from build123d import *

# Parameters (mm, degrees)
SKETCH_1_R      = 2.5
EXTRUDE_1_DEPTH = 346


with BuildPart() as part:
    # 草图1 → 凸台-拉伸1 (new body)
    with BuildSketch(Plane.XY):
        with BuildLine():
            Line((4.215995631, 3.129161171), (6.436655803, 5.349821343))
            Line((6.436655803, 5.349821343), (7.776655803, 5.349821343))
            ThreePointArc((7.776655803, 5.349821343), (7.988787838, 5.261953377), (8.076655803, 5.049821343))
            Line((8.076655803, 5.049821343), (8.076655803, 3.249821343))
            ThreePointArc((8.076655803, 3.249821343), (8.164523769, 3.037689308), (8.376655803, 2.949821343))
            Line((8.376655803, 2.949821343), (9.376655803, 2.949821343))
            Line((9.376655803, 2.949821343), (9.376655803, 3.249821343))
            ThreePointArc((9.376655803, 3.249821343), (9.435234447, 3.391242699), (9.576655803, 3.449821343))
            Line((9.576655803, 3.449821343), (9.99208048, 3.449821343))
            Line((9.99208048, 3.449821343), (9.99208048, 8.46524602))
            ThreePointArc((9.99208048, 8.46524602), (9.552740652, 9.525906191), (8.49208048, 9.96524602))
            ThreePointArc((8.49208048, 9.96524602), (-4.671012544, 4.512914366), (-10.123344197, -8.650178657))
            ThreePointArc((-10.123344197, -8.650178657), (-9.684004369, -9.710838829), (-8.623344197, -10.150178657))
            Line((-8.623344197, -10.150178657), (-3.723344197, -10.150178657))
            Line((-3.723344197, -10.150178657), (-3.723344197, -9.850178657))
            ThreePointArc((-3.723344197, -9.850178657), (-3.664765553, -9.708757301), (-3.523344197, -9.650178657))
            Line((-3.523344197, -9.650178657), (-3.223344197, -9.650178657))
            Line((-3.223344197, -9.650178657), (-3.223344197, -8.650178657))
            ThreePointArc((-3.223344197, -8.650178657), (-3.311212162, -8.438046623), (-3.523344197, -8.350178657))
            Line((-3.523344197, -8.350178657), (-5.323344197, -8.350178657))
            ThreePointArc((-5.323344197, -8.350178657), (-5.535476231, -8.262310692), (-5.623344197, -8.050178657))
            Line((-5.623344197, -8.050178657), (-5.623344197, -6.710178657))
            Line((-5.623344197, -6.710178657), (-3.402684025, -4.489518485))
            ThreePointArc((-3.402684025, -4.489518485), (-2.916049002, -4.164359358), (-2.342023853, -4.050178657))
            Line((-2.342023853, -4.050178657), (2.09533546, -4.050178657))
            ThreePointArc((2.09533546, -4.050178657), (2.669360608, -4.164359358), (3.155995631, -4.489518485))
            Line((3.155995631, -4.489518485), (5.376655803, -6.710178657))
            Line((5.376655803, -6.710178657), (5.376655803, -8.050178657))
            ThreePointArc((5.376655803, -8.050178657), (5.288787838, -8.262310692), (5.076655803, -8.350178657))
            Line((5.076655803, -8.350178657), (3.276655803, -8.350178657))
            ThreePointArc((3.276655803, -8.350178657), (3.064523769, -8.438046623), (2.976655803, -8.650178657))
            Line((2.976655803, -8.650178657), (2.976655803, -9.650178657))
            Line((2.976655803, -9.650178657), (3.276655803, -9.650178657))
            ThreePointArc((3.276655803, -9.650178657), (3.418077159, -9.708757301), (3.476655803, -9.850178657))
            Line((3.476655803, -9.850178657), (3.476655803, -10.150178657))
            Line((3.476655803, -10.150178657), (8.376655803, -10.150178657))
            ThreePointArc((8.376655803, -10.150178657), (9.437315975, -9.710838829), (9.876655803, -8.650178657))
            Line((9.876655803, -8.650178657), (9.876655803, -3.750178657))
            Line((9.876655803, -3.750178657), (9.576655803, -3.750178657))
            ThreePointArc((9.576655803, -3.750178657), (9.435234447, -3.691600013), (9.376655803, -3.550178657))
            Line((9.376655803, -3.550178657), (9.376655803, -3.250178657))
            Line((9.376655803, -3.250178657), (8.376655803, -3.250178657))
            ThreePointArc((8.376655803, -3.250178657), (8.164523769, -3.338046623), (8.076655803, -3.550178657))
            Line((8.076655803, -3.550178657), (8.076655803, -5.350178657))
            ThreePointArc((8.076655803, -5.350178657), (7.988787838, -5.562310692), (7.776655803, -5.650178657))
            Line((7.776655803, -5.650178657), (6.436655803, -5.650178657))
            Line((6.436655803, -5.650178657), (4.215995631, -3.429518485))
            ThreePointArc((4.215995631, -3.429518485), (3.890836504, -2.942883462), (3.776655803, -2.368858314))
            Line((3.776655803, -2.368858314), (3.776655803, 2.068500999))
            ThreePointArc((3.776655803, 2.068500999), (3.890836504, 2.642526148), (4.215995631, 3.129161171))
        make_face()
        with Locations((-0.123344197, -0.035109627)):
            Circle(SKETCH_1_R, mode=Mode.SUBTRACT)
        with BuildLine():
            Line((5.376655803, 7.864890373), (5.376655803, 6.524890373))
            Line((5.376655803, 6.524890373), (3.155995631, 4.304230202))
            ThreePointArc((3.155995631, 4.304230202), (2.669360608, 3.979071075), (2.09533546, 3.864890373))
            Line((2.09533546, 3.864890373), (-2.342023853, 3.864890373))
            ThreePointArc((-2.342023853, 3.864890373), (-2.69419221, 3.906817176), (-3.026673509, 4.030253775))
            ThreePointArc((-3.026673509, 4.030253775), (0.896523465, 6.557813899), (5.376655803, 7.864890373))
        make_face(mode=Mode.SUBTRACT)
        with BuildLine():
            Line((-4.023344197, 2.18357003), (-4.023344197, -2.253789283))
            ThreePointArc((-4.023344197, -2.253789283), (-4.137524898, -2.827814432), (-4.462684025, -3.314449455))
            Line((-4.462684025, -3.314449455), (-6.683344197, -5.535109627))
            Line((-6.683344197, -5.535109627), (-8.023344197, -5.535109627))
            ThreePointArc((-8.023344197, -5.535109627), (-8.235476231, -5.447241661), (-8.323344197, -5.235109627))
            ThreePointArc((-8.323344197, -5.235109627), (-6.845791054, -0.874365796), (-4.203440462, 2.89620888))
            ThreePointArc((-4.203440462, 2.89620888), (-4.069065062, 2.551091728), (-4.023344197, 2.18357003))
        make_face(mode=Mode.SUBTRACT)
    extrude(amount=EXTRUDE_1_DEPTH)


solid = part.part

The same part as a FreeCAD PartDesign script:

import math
import FreeCAD as App
import Part
import Sketcher
from FreeCAD import Vector
Q = App.Units.Quantity

doc = App.newDocument("Part")
params = doc.addObject("Spreadsheet::Sheet", "Params")
for row, (alias, value) in enumerate([
    ("sketch1_diameter", "5 mm"),
    ("sketch1_radius", "0.3 mm"),
    ("sketch1_radius2", "0.2 mm"),
    ("sketch1_radius3", "1.5 mm"),
    ("sketch1_width", "4.9 mm"),
    ("pad1_length", "346 mm"),
], start=1):
    params.set(f"A{row}", alias)
    params.set(f"B{row}", "=" + value)
    params.setAlias(f"B{row}", alias)

body = doc.addObject("PartDesign::Body", "Body")

# Sketch on XY plane
sketch1 = body.newObject("Sketcher::SketchObject", "Sketch")
sketch1.AttachmentSupport = (doc.getObject("XY_Plane"), [""])
sketch1.MapMode = "FlatFace"
sketch1.addGeometry([
    Part.LineSegment(Vector(4.22, 3.13, 0), Vector(6.44, 5.35, 0)),  # 0
    Part.LineSegment(Vector(6.44, 5.35, 0), Vector(7.78, 5.35, 0)),  # 1
    Part.ArcOfCircle(Part.Circle(Vector(7.78, 5.05, 0), Vector(0, 0, 1), 0.3), math.radians(0), math.radians(90)),  # 2
    Part.LineSegment(Vector(8.08, 5.05, 0), Vector(8.08, 3.25, 0)),  # 3
    Part.ArcOfCircle(Part.Circle(Vector(8.38, 3.25, 0), Vector(0, 0, 1), 0.3), math.radians(180), math.radians(270)),  # 4
    Part.LineSegment(Vector(8.38, 2.95, 0), Vector(9.38, 2.95, 0)),  # 5
    Part.LineSegment(Vector(9.38, 2.95, 0), Vector(9.38, 3.25, 0)),  # 6
    Part.ArcOfCircle(Part.Circle(Vector(9.58, 3.25, 0), Vector(0, 0, 1), 0.2), math.radians(90), math.radians(180)),  # 7
    Part.LineSegment(Vector(9.58, 3.45, 0), Vector(9.99, 3.45, 0)),  # 8
    Part.LineSegment(Vector(9.99, 3.45, 0), Vector(9.99, 8.47, 0)),  # 9
    Part.ArcOfCircle(Part.Circle(Vector(8.49, 8.47, 0), Vector(0, 0, 1), 1.5), math.radians(0), math.radians(90)),  # 10
    Part.ArcOfCircle(Part.Circle(Vector(8.49, -8.65, 0), Vector(0, 0, 1), 18.62), math.radians(90), math.radians(180)),  # 11
    Part.ArcOfCircle(Part.Circle(Vector(-8.62, -8.65, 0), Vector(0, 0, 1), 1.5), math.radians(180), math.radians(270)),  # 12
    Part.LineSegment(Vector(-8.62, -10.15, 0), Vector(-3.72, -10.15, 0)),  # 13
    Part.LineSegment(Vector(-3.72, -10.15, 0), Vector(-3.72, -9.85, 0)),  # 14
    Part.ArcOfCircle(Part.Circle(Vector(-3.52, -9.85, 0), Vector(0, 0, 1), 0.2), math.radians(90), math.radians(180)),  # 15
    Part.LineSegment(Vector(-3.52, -9.65, 0), Vector(-3.22, -9.65, 0)),  # 16
    Part.LineSegment(Vector(-3.22, -9.65, 0), Vector(-3.22, -8.65, 0)),  # 17
    Part.ArcOfCircle(Part.Circle(Vector(-3.52, -8.65, 0), Vector(0, 0, 1), 0.3), math.radians(0), math.radians(90)),  # 18
    Part.LineSegment(Vector(-3.52, -8.35, 0), Vector(-5.32, -8.35, 0)),  # 19
    Part.ArcOfCircle(Part.Circle(Vector(-5.32, -8.05, 0), Vector(0, 0, 1), 0.3), math.radians(180), math.radians(270)),  # 20
    Part.LineSegment(Vector(-5.62, -8.05, 0), Vector(-5.62, -6.71, 0)),  # 21
    Part.LineSegment(Vector(-5.62, -6.71, 0), Vector(-3.4, -4.49, 0)),  # 22
    Part.ArcOfCircle(Part.Circle(Vector(-2.34, -5.55, 0), Vector(0, 0, 1), 1.5), math.radians(90), math.radians(135)),  # 23
    Part.LineSegment(Vector(-2.34, -4.05, 0), Vector(2.1, -4.05, 0)),  # 24
    Part.ArcOfCircle(Part.Circle(Vector(2.1, -5.55, 0), Vector(0, 0, 1), 1.5), math.radians(45), math.radians(90)),  # 25
    Part.LineSegment(Vector(3.16, -4.49, 0), Vector(5.38, -6.71, 0)),  # 26
    Part.LineSegment(Vector(5.38, -6.71, 0), Vector(5.38, -8.05, 0)),  # 27
    Part.ArcOfCircle(Part.Circle(Vector(5.08, -8.05, 0), Vector(0, 0, 1), 0.3), math.radians(-90), math.radians(0)),  # 28
    Part.LineSegment(Vector(5.08, -8.35, 0), Vector(3.28, -8.35, 0)),  # 29
    Part.ArcOfCircle(Part.Circle(Vector(3.28, -8.65, 0), Vector(0, 0, 1), 0.3), math.radians(90), math.radians(180)),  # 30
    Part.LineSegment(Vector(2.98, -8.65, 0), Vector(2.98, -9.65, 0)),  # 31
    Part.LineSegment(Vector(2.98, -9.65, 0), Vector(3.28, -9.65, 0)),  # 32
    Part.ArcOfCircle(Part.Circle(Vector(3.28, -9.85, 0), Vector(0, 0, 1), 0.2), math.radians(0), math.radians(90)),  # 33
    Part.LineSegment(Vector(3.48, -9.85, 0), Vector(3.48, -10.15, 0)),  # 34
    Part.LineSegment(Vector(3.48, -10.15, 0), Vector(8.38, -10.15, 0)),  # 35
    Part.ArcOfCircle(Part.Circle(Vector(8.38, -8.65, 0), Vector(0, 0, 1), 1.5), math.radians(-90), math.radians(0)),  # 36
    Part.LineSegment(Vector(9.88, -8.65, 0), Vector(9.88, -3.75, 0)),  # 37
    Part.LineSegment(Vector(9.88, -3.75, 0), Vector(9.58, -3.75, 0)),  # 38
    Part.ArcOfCircle(Part.Circle(Vector(9.58, -3.55, 0), Vector(0, 0, 1), 0.2), math.radians(-180), math.radians(-90)),  # 39
    Part.LineSegment(Vector(9.38, -3.55, 0), Vector(9.38, -3.25, 0)),  # 40
    Part.LineSegment(Vector(9.38, -3.25, 0), Vector(8.38, -3.25, 0)),  # 41
    Part.ArcOfCircle(Part.Circle(Vector(8.38, -3.55, 0), Vector(0, 0, 1), 0.3), math.radians(90), math.radians(180)),  # 42
    Part.LineSegment(Vector(8.08, -3.55, 0), Vector(8.08, -5.35, 0)),  # 43
    Part.ArcOfCircle(Part.Circle(Vector(7.78, -5.35, 0), Vector(0, 0, 1), 0.3), math.radians(-90), math.radians(0)),  # 44
    Part.LineSegment(Vector(7.78, -5.65, 0), Vector(6.44, -5.65, 0)),  # 45
    Part.LineSegment(Vector(6.44, -5.65, 0), Vector(4.22, -3.43, 0)),  # 46
    Part.ArcOfCircle(Part.Circle(Vector(5.28, -2.37, 0), Vector(0, 0, 1), 1.5), math.radians(180), math.radians(225)),  # 47
    Part.LineSegment(Vector(3.78, -2.37, 0), Vector(3.78, 2.07, 0)),  # 48
    Part.ArcOfCircle(Part.Circle(Vector(5.28, 2.07, 0), Vector(0, 0, 1), 1.5), math.radians(135), math.radians(180)),  # 49
    Part.ArcOfCircle(Part.Circle(Vector(-5.52, 2.18, 0), Vector(0, 0, 1), 1.5), math.radians(0), math.radians(28)),  # 50
    Part.LineSegment(Vector(-4.02, 2.18, 0), Vector(-4.02, -2.25, 0)),  # 51
    Part.ArcOfCircle(Part.Circle(Vector(-5.52, -2.25, 0), Vector(0, 0, 1), 1.5), math.radians(-45), math.radians(0)),  # 52
    Part.LineSegment(Vector(-4.46, -3.31, 0), Vector(-6.68, -5.54, 0)),  # 53
    Part.LineSegment(Vector(-6.68, -5.54, 0), Vector(-8.02, -5.54, 0)),  # 54
    Part.ArcOfCircle(Part.Circle(Vector(-8.02, -5.24, 0), Vector(0, 0, 1), 0.3), math.radians(-180), math.radians(-90)),  # 55
    Part.ArcOfCircle(Part.Circle(Vector(7.64, -8.21, 0), Vector(0, 0, 1), 16.23), math.radians(137), math.radians(169)),  # 56
    Part.Circle(Vector(-0.12, -0.04, 0), Vector(0, 0, 1), 2.5),  # 57
    Part.ArcOfCircle(Part.Circle(Vector(7.64, -8.21, 0), Vector(0, 0, 1), 16.23), math.radians(98), math.radians(131)),  # 58
    Part.LineSegment(Vector(5.38, 7.86, 0), Vector(5.38, 6.52, 0)),  # 59
    Part.LineSegment(Vector(5.38, 6.52, 0), Vector(3.16, 4.3, 0)),  # 60
    Part.ArcOfCircle(Part.Circle(Vector(2.1, 5.36, 0), Vector(0, 0, 1), 1.5), math.radians(-90), math.radians(-45)),  # 61
    Part.LineSegment(Vector(2.1, 3.86, 0), Vector(-2.34, 3.86, 0)),  # 62
    Part.ArcOfCircle(Part.Circle(Vector(-2.34, 5.36, 0), Vector(0, 0, 1), 1.5), math.radians(-117), math.radians(-90)),  # 63
], False)
sketch1.addConstraint([
    Sketcher.Constraint("Coincident", 0, 2, 1, 1),
    Sketcher.Constraint("Tangent", 1, 2, 2, 2),
    Sketcher.Constraint("Tangent", 2, 1, 3, 1),
    Sketcher.Constraint("Tangent", 3, 2, 4, 1),
    Sketcher.Constraint("Tangent", 4, 2, 5, 1),
    Sketcher.Constraint("Coincident", 5, 2, 6, 1),
    Sketcher.Constraint("Tangent", 6, 2, 7, 2),
    Sketcher.Constraint("Tangent", 7, 1, 8, 1),
    Sketcher.Constraint("Coincident", 8, 2, 9, 1),
    Sketcher.Constraint("Tangent", 9, 2, 10, 1),
    Sketcher.Constraint("Tangent", 10, 2, 11, 1),
    Sketcher.Constraint("Tangent", 11, 2, 12, 1),
    Sketcher.Constraint("Tangent", 12, 2, 13, 1),
    Sketcher.Constraint("Coincident", 13, 2, 14, 1),
    Sketcher.Constraint("Tangent", 14, 2, 15, 2),
    Sketcher.Constraint("Tangent", 15, 1, 16, 1),
    Sketcher.Constraint("Coincident", 16, 2, 17, 1),
    Sketcher.Constraint("Tangent", 17, 2, 18, 1),
    Sketcher.Constraint("Tangent", 18, 2, 19, 1),
    Sketcher.Constraint("Tangent", 19, 2, 20, 2),
    Sketcher.Constraint("Tangent", 20, 1, 21, 1),
    Sketcher.Constraint("Coincident", 21, 2, 22, 1),
    Sketcher.Constraint("Tangent", 22, 2, 23, 2),
    Sketcher.Constraint("Tangent", 23, 1, 24, 1),
    Sketcher.Constraint("Tangent", 24, 2, 25, 2),
    Sketcher.Constraint("Tangent", 25, 1, 26, 1),
    Sketcher.Constraint("Coincident", 26, 2, 27, 1),
    Sketcher.Constraint("Tangent", 27, 2, 28, 2),
    Sketcher.Constraint("Tangent", 28, 1, 29, 1),
    Sketcher.Constraint("Tangent", 29, 2, 30, 1),
    Sketcher.Constraint("Tangent", 30, 2, 31, 1),
    Sketcher.Constraint("Coincident", 31, 2, 32, 1),
    Sketcher.Constraint("Tangent", 32, 2, 33, 2),
    Sketcher.Constraint("Tangent", 33, 1, 34, 1),
    Sketcher.Constraint("Coincident", 34, 2, 35, 1),
    Sketcher.Constraint("Tangent", 35, 2, 36, 1),
    Sketcher.Constraint("Tangent", 36, 2, 37, 1),
    Sketcher.Constraint("Coincident", 37, 2, 38, 1),
    Sketcher.Constraint("Tangent", 38, 2, 39, 2),
    Sketcher.Constraint("Tangent", 39, 1, 40, 1),
    Sketcher.Constraint("Coincident", 40, 2, 41, 1),
    Sketcher.Constraint("Tangent", 41, 2, 42, 1),
    Sketcher.Constraint("Tangent", 42, 2, 43, 1),
    Sketcher.Constraint("Tangent", 43, 2, 44, 2),
    Sketcher.Constraint("Tangent", 44, 1, 45, 1),
    Sketcher.Constraint("Coincident", 45, 2, 46, 1),
    Sketcher.Constraint("Tangent", 46, 2, 47, 2),
    Sketcher.Constraint("Tangent", 47, 1, 48, 1),
    Sketcher.Constraint("Tangent", 48, 2, 49, 2),
    Sketcher.Constraint("Tangent", 49, 1, 0, 1),
    Sketcher.Constraint("Tangent", 50, 1, 51, 1),
    Sketcher.Constraint("Tangent", 51, 2, 52, 2),
    Sketcher.Constraint("Tangent", 52, 1, 53, 1),
    Sketcher.Constraint("Coincident", 53, 2, 54, 1),
    Sketcher.Constraint("Tangent", 54, 2, 55, 2),
    Sketcher.Constraint("Coincident", 55, 1, 56, 2),
    Sketcher.Constraint("Coincident", 56, 1, 50, 2),
    Sketcher.Constraint("Coincident", 58, 1, 59, 1),
    Sketcher.Constraint("Coincident", 59, 2, 60, 1),
    Sketcher.Constraint("Tangent", 60, 2, 61, 2),
    Sketcher.Constraint("Tangent", 61, 1, 62, 1),
    Sketcher.Constraint("Tangent", 62, 2, 63, 2),
    Sketcher.Constraint("Coincident", 63, 1, 58, 2),
    Sketcher.Constraint("Horizontal", 1),
    Sketcher.Constraint("Vertical", 3),
    Sketcher.Constraint("Horizontal", 5),
    Sketcher.Constraint("Vertical", 6),
    Sketcher.Constraint("Horizontal", 8),
    Sketcher.Constraint("Vertical", 9),
    Sketcher.Constraint("Horizontal", 13),
    Sketcher.Constraint("Vertical", 14),
    Sketcher.Constraint("Horizontal", 16),
    Sketcher.Constraint("Vertical", 17),
    Sketcher.Constraint("Horizontal", 19),
    Sketcher.Constraint("Vertical", 21),
    Sketcher.Constraint("Horizontal", 24),
    Sketcher.Constraint("Vertical", 27),
    Sketcher.Constraint("Horizontal", 29),
    Sketcher.Constraint("Vertical", 31),
    Sketcher.Constraint("Horizontal", 32),
    Sketcher.Constraint("Vertical", 34),
    Sketcher.Constraint("Horizontal", 35),
    Sketcher.Constraint("Vertical", 37),
    Sketcher.Constraint("Horizontal", 38),
    Sketcher.Constraint("Vertical", 40),
    Sketcher.Constraint("Horizontal", 41),
    Sketcher.Constraint("Vertical", 43),
    Sketcher.Constraint("Horizontal", 45),
    Sketcher.Constraint("Vertical", 48),
    Sketcher.Constraint("Vertical", 51),
    Sketcher.Constraint("Horizontal", 54),
    Sketcher.Constraint("Vertical", 59),
    Sketcher.Constraint("Horizontal", 62),
    Sketcher.Constraint("Coincident", 58, 3, 56, 3),
    Sketcher.Constraint("Equal", 2, 4),
    Sketcher.Constraint("Equal", 10, 12),
    Sketcher.Constraint("Equal", 7, 15),
    Sketcher.Constraint("Equal", 4, 18),
    Sketcher.Constraint("Equal", 18, 20),
    Sketcher.Constraint("Equal", 12, 23),
    Sketcher.Constraint("Equal", 23, 25),
    Sketcher.Constraint("Equal", 20, 28),
    Sketcher.Constraint("Equal", 28, 30),
    Sketcher.Constraint("Equal", 15, 33),
    Sketcher.Constraint("Equal", 25, 36),
    Sketcher.Constraint("Equal", 33, 39),
    Sketcher.Constraint("Equal", 30, 42),
    Sketcher.Constraint("Equal", 42, 44),
    Sketcher.Constraint("Equal", 36, 47),
    Sketcher.Constraint("Equal", 47, 49),
    Sketcher.Constraint("Equal", 49, 50),
    Sketcher.Constraint("Equal", 50, 52),
    Sketcher.Constraint("Equal", 44, 55),
    Sketcher.Constraint("Equal", 56, 58),
    Sketcher.Constraint("Equal", 52, 61),
    Sketcher.Constraint("Equal", 61, 63),
    Sketcher.Constraint("Parallel", 0, 22),
    Sketcher.Constraint("Perpendicular", 22, 26),
    Sketcher.Constraint("Parallel", 26, 46),
    Sketcher.Constraint("Perpendicular", 46, 53),
    Sketcher.Constraint("Parallel", 53, 60),
    Sketcher.Constraint("Horizontal", 4, 3, 7, 3),
    Sketcher.Constraint("Horizontal", 11, 3, 12, 3),
    Sketcher.Constraint("Horizontal", 12, 3, 18, 3),
    Sketcher.Constraint("Horizontal", 20, 3, 28, 3),
    Sketcher.Constraint("Horizontal", 15, 3, 33, 3),
    Sketcher.Constraint("Horizontal", 30, 3, 36, 3),
    Sketcher.Constraint("Horizontal", 39, 3, 42, 3),
    Sketcher.Constraint("Horizontal", 22, 2, 25, 1),
    Sketcher.Constraint("Horizontal", 21, 2, 26, 2),
    Sketcher.Constraint("Vertical", 10, 3, 11, 3),
    Sketcher.Constraint("Vertical", 15, 3, 18, 3),
    Sketcher.Constraint("Vertical", 30, 3, 33, 3),
    Sketcher.Constraint("Vertical", 4, 3, 36, 3),
    Sketcher.Constraint("Vertical", 7, 3, 39, 3),
    Sketcher.Constraint("Vertical", 36, 3, 42, 3),
    Sketcher.Constraint("Vertical", 25, 3, 61, 3),
    Sketcher.Constraint("Vertical", 23, 3, 63, 3),
    Sketcher.Constraint("Vertical", 0, 2, 45, 2),
    Sketcher.Constraint("Vertical", 27, 2, 58, 1),
    Sketcher.Constraint("Equal", 19, 29),
    Sketcher.Constraint("Equal", 13, 35),
    Sketcher.Constraint("Equal", 32, 38),
    Sketcher.Constraint("Equal", 45, 54),
    Sketcher.Constraint("Equal", 29, 3),
    Sketcher.Constraint("Equal", 6, 14),
    Sketcher.Constraint("Equal", 54, 21),
    Sketcher.Constraint("Equal", 35, 37),
    Sketcher.Constraint("Equal", 3, 43),
    Sketcher.Constraint("Equal", 62, 48),
    Sketcher.Constraint("Equal", 48, 51),
    Sketcher.Constraint("Equal", 27, 59),
    Sketcher.Constraint("Equal", 0, 22),
    Sketcher.Constraint("Equal", 46, 53),
    Sketcher.Constraint("Diameter", 57, Q("5 mm")),
    Sketcher.Constraint("Radius", 2, Q("0.3 mm")),
    Sketcher.Constraint("Radius", 7, Q("0.2 mm")),
    Sketcher.Constraint("Radius", 10, Q("1.5 mm")),
    Sketcher.Constraint("DistanceX", 13, 1, 13, 2, Q("4.9 mm")),
    Sketcher.Constraint("DistanceX", 19, 2, 19, 1, Q("1.8 mm")),
    Sketcher.Constraint("DistanceX", 1, 1, 1, 2, Q("1.34 mm")),
    Sketcher.Constraint("Radius", 11, Q("18.615425 mm")),
    Sketcher.Constraint("Radius", 56, Q("16.234974 mm")),
    Sketcher.Constraint("DistanceX", 24, 1, 24, 2, Q("4.437359 mm")),
    Sketcher.Constraint("DistanceY", -1, 1, 49, 3, Q("2.068501 mm")),
    Sketcher.Constraint("DistanceX", 8, 1, 8, 2, Q("0.415425 mm")),
    Sketcher.Constraint("DistanceX", -1, 1, 10, 3, Q("8.49208 mm")),
    Sketcher.Constraint("DistanceY", -1, 1, 50, 3, Q("2.18357 mm")),
    Sketcher.Constraint("DistanceX", -1, 1, 56, 3, Q("7.636361 mm")),
    Sketcher.Constraint("DistanceY", 57, 3, -1, 1, Q("0.03511 mm")),
    Sketcher.Constraint("DistanceY", -1, 1, 61, 3, Q("5.36489 mm")),
    Sketcher.Constraint("DistanceY", 55, 1, -1, 1, Q("5.23511 mm")),
    Sketcher.Constraint("DistanceX", 57, 3, -1, 1, Q("0.123344 mm")),
])
sketch1.setExpression("Constraints[154]", "Params.sketch1_diameter")
sketch1.setExpression("Constraints[155]", "Params.sketch1_radius")
sketch1.setExpression("Constraints[156]", "Params.sketch1_radius2")
sketch1.setExpression("Constraints[157]", "Params.sketch1_radius3")
sketch1.setExpression("Constraints[158]", "Params.sketch1_width")
pad1 = body.newObject("PartDesign::Pad", "Pad")
pad1.Profile = sketch1
pad1.setExpression("Length", "Params.pad1_length")

doc.recompute()
